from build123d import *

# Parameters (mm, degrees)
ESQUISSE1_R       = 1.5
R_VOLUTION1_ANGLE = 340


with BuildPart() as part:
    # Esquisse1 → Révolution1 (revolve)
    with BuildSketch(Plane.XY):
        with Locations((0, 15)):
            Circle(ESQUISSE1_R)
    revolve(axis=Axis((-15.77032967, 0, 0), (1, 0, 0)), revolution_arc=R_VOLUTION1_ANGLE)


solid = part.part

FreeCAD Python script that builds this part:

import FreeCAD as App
import Part
import Sketcher

doc = App.newDocument("Part")
body = doc.addObject("PartDesign::Body", "Body")

sketch1 = body.newObject("Sketcher::SketchObject", "Sketch")
sketch1.AttachmentSupport = (doc.getObject("XY_Plane"), [""])
sketch1.MapMode = "FlatFace"
sketch1.addGeometry(Part.Circle(App.Vector(0, 15, 0), App.Vector(0, 0, 1), 1.5), False)
sketch1.addConstraint(Sketcher.Constraint("PointOnObject", 0, 3, -2))
sketch1.addConstraint(Sketcher.Constraint("Diameter", 0, 3.0))
sketch1.addConstraint(Sketcher.Constraint("DistanceY", -1, 1, 0, 3, 15.0))
revolution = body.newObject("PartDesign::Revolution", "Revolution")
revolution.Profile = sketch1
revolution.ReferenceAxis = (sketch1, ["H_Axis"])
revolution.Angle = 340

doc.recompute()
